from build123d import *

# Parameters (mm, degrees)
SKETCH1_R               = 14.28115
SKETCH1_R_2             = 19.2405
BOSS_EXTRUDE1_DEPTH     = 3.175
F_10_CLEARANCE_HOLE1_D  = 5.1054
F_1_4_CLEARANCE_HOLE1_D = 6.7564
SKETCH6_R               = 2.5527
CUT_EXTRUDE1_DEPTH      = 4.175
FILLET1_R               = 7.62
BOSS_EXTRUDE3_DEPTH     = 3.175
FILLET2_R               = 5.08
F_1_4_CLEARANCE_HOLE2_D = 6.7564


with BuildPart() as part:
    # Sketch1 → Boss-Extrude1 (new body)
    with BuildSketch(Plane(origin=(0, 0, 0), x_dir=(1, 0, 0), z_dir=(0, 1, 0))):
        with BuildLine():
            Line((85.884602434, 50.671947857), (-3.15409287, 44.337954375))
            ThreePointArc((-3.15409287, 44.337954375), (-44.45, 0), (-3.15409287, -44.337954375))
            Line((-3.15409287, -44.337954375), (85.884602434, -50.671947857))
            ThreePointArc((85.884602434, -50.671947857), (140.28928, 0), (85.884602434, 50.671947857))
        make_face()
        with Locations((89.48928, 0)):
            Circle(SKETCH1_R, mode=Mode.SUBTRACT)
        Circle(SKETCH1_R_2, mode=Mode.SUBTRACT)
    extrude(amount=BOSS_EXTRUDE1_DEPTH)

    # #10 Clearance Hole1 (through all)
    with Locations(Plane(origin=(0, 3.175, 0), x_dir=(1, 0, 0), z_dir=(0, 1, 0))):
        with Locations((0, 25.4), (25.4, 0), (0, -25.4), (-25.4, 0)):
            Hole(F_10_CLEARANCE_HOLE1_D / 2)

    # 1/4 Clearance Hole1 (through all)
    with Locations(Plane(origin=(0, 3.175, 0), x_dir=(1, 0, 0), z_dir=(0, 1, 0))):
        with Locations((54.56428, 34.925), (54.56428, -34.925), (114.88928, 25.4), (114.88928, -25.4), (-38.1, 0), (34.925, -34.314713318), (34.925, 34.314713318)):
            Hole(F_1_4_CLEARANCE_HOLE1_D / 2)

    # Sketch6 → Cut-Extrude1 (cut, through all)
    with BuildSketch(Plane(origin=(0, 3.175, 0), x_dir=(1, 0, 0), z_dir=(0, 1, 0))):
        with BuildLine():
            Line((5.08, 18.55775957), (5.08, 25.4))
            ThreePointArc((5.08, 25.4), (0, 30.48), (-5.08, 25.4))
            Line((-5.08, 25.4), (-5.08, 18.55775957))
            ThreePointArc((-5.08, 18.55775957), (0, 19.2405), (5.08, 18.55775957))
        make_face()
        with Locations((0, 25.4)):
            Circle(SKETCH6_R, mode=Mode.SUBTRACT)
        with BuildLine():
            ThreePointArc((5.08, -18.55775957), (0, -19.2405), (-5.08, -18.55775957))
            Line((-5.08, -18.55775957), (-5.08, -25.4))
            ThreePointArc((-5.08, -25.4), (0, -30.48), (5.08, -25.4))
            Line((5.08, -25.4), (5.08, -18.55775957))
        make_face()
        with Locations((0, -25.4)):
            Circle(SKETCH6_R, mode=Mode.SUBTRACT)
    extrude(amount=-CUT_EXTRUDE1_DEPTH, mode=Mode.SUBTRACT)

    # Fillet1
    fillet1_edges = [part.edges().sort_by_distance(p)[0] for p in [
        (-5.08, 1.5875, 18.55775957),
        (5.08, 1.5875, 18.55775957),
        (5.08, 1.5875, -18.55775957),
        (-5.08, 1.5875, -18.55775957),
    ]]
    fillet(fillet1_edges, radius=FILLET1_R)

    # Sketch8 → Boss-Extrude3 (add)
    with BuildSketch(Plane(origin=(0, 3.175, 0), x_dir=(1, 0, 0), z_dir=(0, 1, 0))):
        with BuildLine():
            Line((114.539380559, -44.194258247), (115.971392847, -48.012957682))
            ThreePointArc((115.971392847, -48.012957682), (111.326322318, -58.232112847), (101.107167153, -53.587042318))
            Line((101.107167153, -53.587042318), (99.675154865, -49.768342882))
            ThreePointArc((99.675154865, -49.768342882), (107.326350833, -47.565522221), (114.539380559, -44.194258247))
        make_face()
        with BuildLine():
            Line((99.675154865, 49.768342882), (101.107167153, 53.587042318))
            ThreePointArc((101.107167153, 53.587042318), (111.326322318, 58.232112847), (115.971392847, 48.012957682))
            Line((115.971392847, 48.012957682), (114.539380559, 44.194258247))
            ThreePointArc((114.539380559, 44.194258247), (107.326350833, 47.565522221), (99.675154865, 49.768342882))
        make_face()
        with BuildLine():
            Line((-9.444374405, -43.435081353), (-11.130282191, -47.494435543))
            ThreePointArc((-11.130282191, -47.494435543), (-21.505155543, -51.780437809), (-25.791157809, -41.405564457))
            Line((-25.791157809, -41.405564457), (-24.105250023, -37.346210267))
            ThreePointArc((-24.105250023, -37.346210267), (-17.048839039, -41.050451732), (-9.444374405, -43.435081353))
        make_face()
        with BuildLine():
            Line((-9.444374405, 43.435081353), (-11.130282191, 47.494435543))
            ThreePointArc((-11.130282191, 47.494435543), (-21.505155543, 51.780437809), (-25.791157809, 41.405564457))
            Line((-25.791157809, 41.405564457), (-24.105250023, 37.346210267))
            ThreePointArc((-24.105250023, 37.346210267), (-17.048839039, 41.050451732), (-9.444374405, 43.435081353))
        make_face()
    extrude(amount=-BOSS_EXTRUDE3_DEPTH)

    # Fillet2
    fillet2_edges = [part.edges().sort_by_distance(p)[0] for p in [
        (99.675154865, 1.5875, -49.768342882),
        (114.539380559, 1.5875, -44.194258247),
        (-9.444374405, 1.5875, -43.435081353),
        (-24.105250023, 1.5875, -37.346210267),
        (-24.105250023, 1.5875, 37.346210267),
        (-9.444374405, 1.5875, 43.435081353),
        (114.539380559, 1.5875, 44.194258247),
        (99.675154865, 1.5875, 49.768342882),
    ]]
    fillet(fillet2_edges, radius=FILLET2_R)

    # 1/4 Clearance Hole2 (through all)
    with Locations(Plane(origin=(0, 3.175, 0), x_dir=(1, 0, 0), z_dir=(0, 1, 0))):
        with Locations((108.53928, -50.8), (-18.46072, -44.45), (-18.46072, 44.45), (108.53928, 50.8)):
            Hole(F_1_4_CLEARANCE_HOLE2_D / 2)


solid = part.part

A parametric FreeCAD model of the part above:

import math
import FreeCAD as App
import Part
import Sketcher

V = App.Vector
Q = App.Units.Quantity


def edges_at(feature, points):
    """Names of the edges that pass closest to the given points."""
    edges = feature.Shape.Edges
    near = lambda p: min(range(len(edges)), key=lambda i: edges[i].distToShape(Part.Vertex(*p))[0])
    return sorted({f"Edge{near(p) + 1}" for p in points})

doc = App.newDocument("Part")
params = doc.addObject("Spreadsheet::Sheet", "Params")
for row, (alias, value) in enumerate([
    ("sketch1_radius", "2 in"),
    ("sketch1_radius2", "1.75 in"),
    ("sketch1_diameter", "1.515 in"),
    ("pad1_length", "0.125 in"),
    ("sketch2_diameter", "0.201 in"),
    ("hole_diameter", "0.201 in"),
    ("sketch3_diameter", "0.266 in"),
    ("hole2_diameter", "0.266 in"),
    ("sketch4_radius", "0.2 in"),
    ("sketch4_diameter", "0.201 in"),
    ("fillet_radius", "0.3 in"),
    ("sketch5_radius", "2 in"),
    ("sketch5_radius2", "1.75 in"),
    ("sketch5_radius3", "0.3125 in"),
    ("pad2_length", "0.125 in"),
    ("fillet2_radius", "0.2 in"),
    ("sketch6_diameter", "0.266 in"),
    ("hole3_diameter", "0.266 in"),
], start=1):
    params.set(f"A{row}", alias)
    params.set(f"B{row}", "=" + value)
    params.setAlias(f"B{row}", alias)

body = doc.addObject("PartDesign::Body", "Body")

# Sketch on XZ plane
sketch1 = doc.addObject("Sketcher::SketchObject", "Sketch")
body.addObject(sketch1)
sketch1.AttachmentSupport = (doc.XZ_Plane, [""])
sketch1.MapMode = "FlatFace"
sketch1.addGeometry([
    Part.LineSegment(V(86, -51, 0), V(-3, -44, 0)),  # 0
    Part.ArcOfCircle(Part.Circle(V(0, 0, 0), V(0, 0, 1), 44), math.radians(94), math.radians(266)),  # 1
    Part.LineSegment(V(-3, 44, 0), V(86, 51, 0)),  # 2
    Part.ArcOfCircle(Part.Circle(V(89, 0, 0), V(0, 0, 1), 51), math.radians(-94), math.radians(94)),  # 3
    Part.Circle(V(0, 0, 0), V(0, 0, 1), 19),  # 4
    Part.Circle(V(89, 0, 0), V(0, 0, 1), 14),  # 5
], False)
sketch1.addConstraint([
    Sketcher.Constraint("Tangent", 0, 2, 1, 2),
    Sketcher.Constraint("Tangent", 1, 1, 2, 1),
    Sketcher.Constraint("Tangent", 2, 2, 3, 2),
    Sketcher.Constraint("Tangent", 3, 1, 0, 1),
    Sketcher.Constraint("Coincident", 1, 3, -1, 1),
    Sketcher.Constraint("Coincident", 4, 3, -1, 1),
    Sketcher.Constraint("Coincident", 5, 3, 3, 3),
    Sketcher.Constraint("PointOnObject", 3, 3, -1),
    Sketcher.Constraint("Radius", 3, Q("2 in")),
    Sketcher.Constraint("Radius", 1, Q("1.75 in")),
    Sketcher.Constraint("Diameter", 4, Q("1.515 in")),
    Sketcher.Constraint("Diameter", 5, Q("1.1245 in")),
    Sketcher.Constraint("DistanceX", -1, 1, 3, 3, Q("3.5232 in")),
])
sketch1.setExpression("Constraints[8]", "Params.sketch1_radius")
sketch1.setExpression("Constraints[9]", "Params.sketch1_radius2")
sketch1.setExpression("Constraints[10]", "Params.sketch1_diameter")
pad1 = doc.addObject("PartDesign::Pad", "Pad")
body.addObject(pad1)
pad1.Profile = sketch1
pad1.setExpression("Length", "Params.pad1_length")
pad1.Reversed = True

# Sketch on XZ plane
sketch2 = doc.addObject("Sketcher::SketchObject", "Sketch001")
body.addObject(sketch2)
sketch2.AttachmentSupport = (doc.XZ_Plane, [""])
sketch2.MapMode = "FlatFace"
sketch2.AttachmentOffset = App.Placement(V(0, 0, -0.125 * 25.4), App.Rotation())
sketch2.addGeometry([
    Part.Circle(V(0, -25.4, 0), V(0, 0, 1), 2.6),
    Part.Circle(V(25.4, 0, 0), V(0, 0, 1), 2.6),
    Part.Circle(V(0, 25.4, 0), V(0, 0, 1), 2.6),
    Part.Circle(V(-25.4, 0, 0), V(0, 0, 1), 2.6),
], False)
sketch2.addConstraint([
    Sketcher.Constraint("Equal", 0, 1),
    Sketcher.Constraint("Equal", 1, 2),
    Sketcher.Constraint("Equal", 2, 3),
    Sketcher.Constraint("Symmetric", 0, 3, 2, 3, -1, 1),
    Sketcher.Constraint("Symmetric", 1, 3, 3, 3, -1, 1),
    Sketcher.Constraint("PointOnObject", 0, 3, -2),
    Sketcher.Constraint("PointOnObject", 1, 3, -1),
    Sketcher.Constraint("Diameter", 0, Q("0.201 in")),
    Sketcher.Constraint("DistanceY", 0, 3, -1, 1, Q("1 in")),
    Sketcher.Constraint("DistanceX", -1, 1, 1, 3, Q("1 in")),
])
sketch2.setExpression("Constraints[7]", "Params.sketch2_diameter")
doc.recompute()
hole = doc.addObject("PartDesign::Hole", "Hole")
body.addObject(hole)
hole.Profile = sketch2
hole.ThreadType = "None"
hole.setExpression("Diameter", "Params.hole_diameter")
hole.DepthType = "ThroughAll"
hole.Reversed = True

# Sketch on XZ plane
sketch3 = doc.addObject("Sketcher::SketchObject", "Sketch002")
body.addObject(sketch3)
sketch3.AttachmentSupport = (doc.XZ_Plane, [""])
sketch3.MapMode = "FlatFace"
sketch3.AttachmentOffset = App.Placement(V(0, 0, -0.125 * 25.4), App.Rotation())
sketch3.addGeometry([
    Part.Circle(V(54.6, -34.9, 0), V(0, 0, 1), 3.4),  # 0
    Part.Circle(V(54.6, 34.9, 0), V(0, 0, 1), 3.4),  # 1
    Part.Circle(V(114.9, -25.4, 0), V(0, 0, 1), 3.4),  # 2
    Part.Circle(V(114.9, 25.4, 0), V(0, 0, 1), 3.4),  # 3
    Part.Circle(V(-38.1, 0, 0), V(0, 0, 1), 3.4),  # 4
    Part.Circle(V(34.9, 34.3, 0), V(0, 0, 1), 3.4),  # 5
    Part.Circle(V(34.9, -34.3, 0), V(0, 0, 1), 3.4),  # 6
], False)
sketch3.addConstraint([
    Sketcher.Constraint("Equal", 0, 1),
    Sketcher.Constraint("Equal", 1, 2),
    Sketcher.Constraint("Equal", 2, 3),
    Sketcher.Constraint("Equal", 3, 4),
    Sketcher.Constraint("Equal", 4, 5),
    Sketcher.Constraint("Equal", 5, 6),
    Sketcher.Constraint("Symmetric", 0, 3, 1, 3, -1),
    Sketcher.Constraint("Symmetric", 2, 3, 3, 3, -1),
    Sketcher.Constraint("Symmetric", 5, 3, 6, 3, -1),
    Sketcher.Constraint("PointOnObject", 4, 3, -1),
    Sketcher.Constraint("Diameter", 0, Q("0.266 in")),
    Sketcher.Constraint("DistanceY", 2, 3, -1, 1, Q("1 in")),
    Sketcher.Constraint("DistanceX", 4, 3, -1, 1, Q("1.5 in")),
    Sketcher.Constraint("DistanceY", 0, 3, 1, 3, Q("2.75 in")),
    Sketcher.Constraint("DistanceX", -1, 1, 5, 3, Q("1.375 in")),
    Sketcher.Constraint("DistanceX", 0, 3, 2, 3, Q("2.375 in")),
    Sketcher.Constraint("DistanceX", -1, 1, 0, 3, Q("2.1482 in")),
    Sketcher.Constraint("DistanceY", -1, 1, 5, 3, Q("34.314713 mm")),
])
sketch3.setExpression("Constraints[10]", "Params.sketch3_diameter")
doc.recompute()
hole2 = doc.addObject("PartDesign::Hole", "Hole001")
body.addObject(hole2)
hole2.Profile = sketch3
hole2.ThreadType = "None"
hole2.setExpression("Diameter", "Params.hole2_diameter")
hole2.DepthType = "ThroughAll"
hole2.Reversed = True

# Sketch on XZ plane
sketch4 = doc.addObject("Sketcher::SketchObject", "Sketch003")
body.addObject(sketch4)
sketch4.AttachmentSupport = (doc.XZ_Plane, [""])
sketch4.MapMode = "FlatFace"
sketch4.AttachmentOffset = App.Placement(V(0, 0, -0.125 * 25.4), App.Rotation())
sketch4.addGeometry([
    Part.LineSegment(V(5.1, -18.6, 0), V(5.1, -25.4, 0)),  # 0
    Part.ArcOfCircle(Part.Circle(V(0, -25.4, 0), V(0, 0, 1), 5.1), math.radians(180), math.radians(360)),  # 1
    Part.LineSegment(V(-5.1, -25.4, 0), V(-5.1, -18.6, 0)),  # 2
    Part.ArcOfCircle(Part.Circle(V(0, 0, 0), V(0, 0, 1), 19.2), math.radians(-105), math.radians(-75)),  # 3
    Part.Circle(V(0, -25.4, 0), V(0, 0, 1), 2.6),  # 4
    Part.ArcOfCircle(Part.Circle(V(0, 0, 0), V(0, 0, 1), 19.2), math.radians(75), math.radians(105)),  # 5
    Part.LineSegment(V(-5.1, 18.6, 0), V(-5.1, 25.4, 0)),  # 6
    Part.ArcOfCircle(Part.Circle(V(0, 25.4, 0), V(0, 0, 1), 5.1), math.radians(0), math.radians(180)),  # 7
    Part.LineSegment(V(5.1, 25.4, 0), V(5.1, 18.6, 0)),  # 8
    Part.Circle(V(0, 25.4, 0), V(0, 0, 1), 2.6),  # 9
], False)
sketch4.addConstraint([
    Sketcher.Constraint("Tangent", 0, 2, 1, 2),
    Sketcher.Constraint("Tangent", 1, 1, 2, 1),
    Sketcher.Constraint("Coincident", 2, 2, 3, 1),
    Sketcher.Constraint("Coincident", 3, 2, 0, 1),
    Sketcher.Constraint("Coincident", 5, 2, 6, 1),
    Sketcher.Constraint("Tangent", 6, 2, 7, 2),
    Sketcher.Constraint("Tangent", 7, 1, 8, 1),
    Sketcher.Constraint("Coincident", 8, 2, 5, 1),
    Sketcher.Constraint("Vertical", 0),
    Sketcher.Constraint("Vertical", 2),
    Sketcher.Constraint("Vertical", 6),
    Sketcher.Constraint("Vertical", 8),
    Sketcher.Constraint("Coincident", 3, 3, -1, 1),
    Sketcher.Constraint("Coincident", 5, 3, -1, 1),
    Sketcher.Constraint("Coincident", 4, 3, 1, 3),
    Sketcher.Constraint("Coincident", 9, 3, 7, 3),
    Sketcher.Constraint("Equal", 3, 5),
    Sketcher.Constraint("Equal", 1, 7),
    Sketcher.Constraint("Equal", 4, 9),
    Sketcher.Constraint("Symmetric", 1, 3, 7, 3, -1, 1),
    Sketcher.Constraint("PointOnObject", 1, 3, -2),
    Sketcher.Constraint("Radius", 1, Q("0.2 in")),
    Sketcher.Constraint("Diameter", 4, Q("0.201 in")),
    Sketcher.Constraint("DistanceY", 1, 3, -1, 1, Q("1 in")),
    Sketcher.Constraint("Radius", 3, Q("0.7575 in")),
])
sketch4.setExpression("Constraints[21]", "Params.sketch4_radius")
sketch4.setExpression("Constraints[22]", "Params.sketch4_diameter")
pocket1 = doc.addObject("PartDesign::Pocket", "Pocket")
body.addObject(pocket1)
pocket1.Profile = sketch4
pocket1.Type = "ThroughAll"
pocket1.Reversed = True
doc.recompute()

fillet = doc.addObject("PartDesign::Fillet", "Fillet")
body.addObject(fillet)
fillet.Base = (pocket1, edges_at(pocket1, [
    (-5.08, 1.587, 18.558),
    (5.08, 1.587, 18.558),
    (5.08, 1.587, -18.558),
    (-5.08, 1.587, -18.558),
]))
fillet.setExpression("Radius", "Params.fillet_radius")

# Sketch on XZ plane
sketch5 = doc.addObject("Sketcher::SketchObject", "Sketch004")
body.addObject(sketch5)
sketch5.AttachmentSupport = (doc.XZ_Plane, [""])
sketch5.MapMode = "FlatFace"
sketch5.AttachmentOffset = App.Placement(V(0, 0, -0.125 * 25.4), App.Rotation())
sketch5.addGeometry([
    Part.LineSegment(V(116, 48, 0), V(114.5, 44.2, 0)),  # 0
    Part.ArcOfCircle(Part.Circle(V(89.5, 0, 0), V(0, 0, 1), 50.8), math.radians(60.45), math.radians(78.43)),  # 1
    Part.LineSegment(V(99.7, 49.8, 0), V(101.1, 53.6, 0)),  # 2
    Part.ArcOfCircle(Part.Circle(V(108.5, 50.8, 0), V(0, 0, 1), 7.9), math.radians(-21), math.radians(159)),  # 3
    Part.LineSegment(V(101.1, -53.6, 0), V(99.7, -49.8, 0)),  # 4
    Part.ArcOfCircle(Part.Circle(V(89.5, 0, 0), V(0, 0, 1), 50.8), math.radians(-78.43), math.radians(-60.45)),  # 5
    Part.LineSegment(V(114.5, -44.2, 0), V(116, -48, 0)),  # 6
    Part.ArcOfCircle(Part.Circle(V(108.5, -50.8, 0), V(0, 0, 1), 7.9), math.radians(-159), math.radians(21)),  # 7
    Part.LineSegment(V(-11.1, 47.5, 0), V(-9.4, 43.4, 0)),  # 8
    Part.ArcOfCircle(Part.Circle(V(0, 0, 0), V(0, 0, 1), 44.5), math.radians(102), math.radians(123)),  # 9
    Part.LineSegment(V(-24.1, 37.3, 0), V(-25.8, 41.4, 0)),  # 10
    Part.ArcOfCircle(Part.Circle(V(-18.5, 44.5, 0), V(0, 0, 1), 7.9), math.radians(23), math.radians(203)),  # 11
    Part.LineSegment(V(-9.4, -43.4, 0), V(-11.1, -47.5, 0)),  # 12
    Part.ArcOfCircle(Part.Circle(V(-18.5, -44.5, 0), V(0, 0, 1), 7.9), math.radians(157), math.radians(337)),  # 13
    Part.LineSegment(V(-25.8, -41.4, 0), V(-24.1, -37.3, 0)),  # 14
    Part.ArcOfCircle(Part.Circle(V(0, 0, 0), V(0, 0, 1), 44.5), math.radians(-123), math.radians(-102)),  # 15
], False)
sketch5.addConstraint([
    Sketcher.Constraint("Coincident", 0, 2, 1, 1),
    Sketcher.Constraint("Coincident", 1, 2, 2, 1),
    Sketcher.Constraint("Tangent", 2, 2, 3, 2),
    Sketcher.Constraint("Tangent", 3, 1, 0, 1),
    Sketcher.Constraint("Coincident", 4, 2, 5, 1),
    Sketcher.Constraint("Coincident", 5, 2, 6, 1),
    Sketcher.Constraint("Tangent", 6, 2, 7, 2),
    Sketcher.Constraint("Tangent", 7, 1, 4, 1),
    Sketcher.Constraint("Coincident", 8, 2, 9, 1),
    Sketcher.Constraint("Coincident", 9, 2, 10, 1),
    Sketcher.Constraint("Tangent", 10, 2, 11, 2),
    Sketcher.Constraint("Tangent", 11, 1, 8, 1),
    Sketcher.Constraint("Tangent", 12, 2, 13, 2),
    Sketcher.Constraint("Tangent", 13, 1, 14, 1),
    Sketcher.Constraint("Coincident", 14, 2, 15, 1),
    Sketcher.Constraint("Coincident", 15, 2, 12, 1),
    Sketcher.Constraint("Coincident", 9, 3, -1, 1),
    Sketcher.Constraint("Coincident", 15, 3, -1, 1),
    Sketcher.Constraint("Coincident", 5, 3, 1, 3),
    Sketcher.Constraint("Equal", 1, 5),
    Sketcher.Constraint("Equal", 3, 7),
    Sketcher.Constraint("Equal", 7, 11),
    Sketcher.Constraint("Equal", 11, 13),
    Sketcher.Constraint("Equal", 9, 15),
    Sketcher.Constraint("Symmetric", 3, 3, 7, 3, -1),
    Sketcher.Constraint("Symmetric", 11, 3, 13, 3, -1),
    Sketcher.Constraint("Symmetric", 1, 2, 4, 2, -1),
    Sketcher.Constraint("Parallel", 0, 2),
    Sketcher.Constraint("Parallel", 4, 6),
    Sketcher.Constraint("Parallel", 8, 10),
    Sketcher.Constraint("Parallel", 12, 14),
    Sketcher.Constraint("Vertical", 11, 1, 12, 2),
    Sketcher.Constraint("Equal", 0, 2),
    Sketcher.Constraint("Equal", 8, 10),
    Sketcher.Constraint("Radius", 1, Q("2 in")),
    Sketcher.Constraint("Radius", 9, Q("1.75 in")),
    Sketcher.Constraint("DistanceY", -1, 1, 3, 3, Q("2 in")),
    Sketcher.Constraint("Radius", 3, Q("0.3125 in")),
    Sketcher.Constraint("DistanceX", 11, 3, 3, 3, Q("5 in")),
    Sketcher.Constraint("DistanceY", 13, 3, 11, 3, Q("3.5 in")),
    Sketcher.Constraint("DistanceX", 1, 3, 3, 3, Q("0.75 in")),
    Sketcher.Constraint("DistanceX", -1, 1, 1, 3, Q("3.5232 in")),
])
sketch5.setExpression("Constraints[34]", "Params.sketch5_radius")
sketch5.setExpression("Constraints[35]", "Params.sketch5_radius2")
sketch5.setExpression("Constraints[37]", "Params.sketch5_radius3")
pad2 = doc.addObject("PartDesign::Pad", "Pad001")
body.addObject(pad2)
pad2.Profile = sketch5
pad2.setExpression("Length", "Params.pad2_length")
doc.recompute()

fillet2 = doc.addObject("PartDesign::Fillet", "Fillet001")
body.addObject(fillet2)
fillet2.Base = (pad2, edges_at(pad2, [
    (99.675, 1.587, -49.768),
    (114.539, 1.587, -44.194),
    (-9.444, 1.587, -43.435),
    (-24.105, 1.587, -37.346),
    (-24.105, 1.587, 37.346),
    (-9.444, 1.587, 43.435),
    (114.539, 1.587, 44.194),
    (99.675, 1.587, 49.768),
]))
fillet2.setExpression("Radius", "Params.fillet2_radius")

# Sketch on XZ plane
sketch6 = doc.addObject("Sketcher::SketchObject", "Sketch005")
body.addObject(sketch6)
sketch6.AttachmentSupport = (doc.XZ_Plane, [""])
sketch6.MapMode = "FlatFace"
sketch6.AttachmentOffset = App.Placement(V(0, 0, -0.125 * 25.4), App.Rotation())
sketch6.addGeometry([
    Part.Circle(V(108.5, 50.8, 0), V(0, 0, 1), 3.4),
    Part.Circle(V(-18.5, 44.5, 0), V(0, 0, 1), 3.4),
    Part.Circle(V(-18.5, -44.5, 0), V(0, 0, 1), 3.4),
    Part.Circle(V(108.5, -50.8, 0), V(0, 0, 1), 3.4),
], False)
sketch6.addConstraint([
    Sketcher.Constraint("Equal", 0, 1),
    Sketcher.Constraint("Equal", 1, 2),
    Sketcher.Constraint("Equal", 2, 3),
    Sketcher.Constraint("Symmetric", 1, 3, 2, 3, -1),
    Sketcher.Constraint("Symmetric", 0, 3, 3, 3, -1),
    Sketcher.Constraint("Diameter", 0, Q("0.266 in")),
    Sketcher.Constraint("DistanceY", -1, 1, 0, 3, Q("2 in")),
    Sketcher.Constraint("DistanceX", 1, 3, 0, 3, Q("5 in")),
    Sketcher.Constraint("DistanceY", 2, 3, 1, 3, Q("3.5 in")),
    Sketcher.Constraint("DistanceX", -1, 1, 0, 3, Q("4.2732 in")),
])
sketch6.setExpression("Constraints[5]", "Params.sketch6_diameter")
doc.recompute()
hole3 = doc.addObject("PartDesign::Hole", "Hole002")
body.addObject(hole3)
hole3.Profile = sketch6
hole3.ThreadType = "None"
hole3.setExpression("Diameter", "Params.hole3_diameter")
hole3.DepthType = "ThroughAll"
hole3.Reversed = True

doc.recompute()
